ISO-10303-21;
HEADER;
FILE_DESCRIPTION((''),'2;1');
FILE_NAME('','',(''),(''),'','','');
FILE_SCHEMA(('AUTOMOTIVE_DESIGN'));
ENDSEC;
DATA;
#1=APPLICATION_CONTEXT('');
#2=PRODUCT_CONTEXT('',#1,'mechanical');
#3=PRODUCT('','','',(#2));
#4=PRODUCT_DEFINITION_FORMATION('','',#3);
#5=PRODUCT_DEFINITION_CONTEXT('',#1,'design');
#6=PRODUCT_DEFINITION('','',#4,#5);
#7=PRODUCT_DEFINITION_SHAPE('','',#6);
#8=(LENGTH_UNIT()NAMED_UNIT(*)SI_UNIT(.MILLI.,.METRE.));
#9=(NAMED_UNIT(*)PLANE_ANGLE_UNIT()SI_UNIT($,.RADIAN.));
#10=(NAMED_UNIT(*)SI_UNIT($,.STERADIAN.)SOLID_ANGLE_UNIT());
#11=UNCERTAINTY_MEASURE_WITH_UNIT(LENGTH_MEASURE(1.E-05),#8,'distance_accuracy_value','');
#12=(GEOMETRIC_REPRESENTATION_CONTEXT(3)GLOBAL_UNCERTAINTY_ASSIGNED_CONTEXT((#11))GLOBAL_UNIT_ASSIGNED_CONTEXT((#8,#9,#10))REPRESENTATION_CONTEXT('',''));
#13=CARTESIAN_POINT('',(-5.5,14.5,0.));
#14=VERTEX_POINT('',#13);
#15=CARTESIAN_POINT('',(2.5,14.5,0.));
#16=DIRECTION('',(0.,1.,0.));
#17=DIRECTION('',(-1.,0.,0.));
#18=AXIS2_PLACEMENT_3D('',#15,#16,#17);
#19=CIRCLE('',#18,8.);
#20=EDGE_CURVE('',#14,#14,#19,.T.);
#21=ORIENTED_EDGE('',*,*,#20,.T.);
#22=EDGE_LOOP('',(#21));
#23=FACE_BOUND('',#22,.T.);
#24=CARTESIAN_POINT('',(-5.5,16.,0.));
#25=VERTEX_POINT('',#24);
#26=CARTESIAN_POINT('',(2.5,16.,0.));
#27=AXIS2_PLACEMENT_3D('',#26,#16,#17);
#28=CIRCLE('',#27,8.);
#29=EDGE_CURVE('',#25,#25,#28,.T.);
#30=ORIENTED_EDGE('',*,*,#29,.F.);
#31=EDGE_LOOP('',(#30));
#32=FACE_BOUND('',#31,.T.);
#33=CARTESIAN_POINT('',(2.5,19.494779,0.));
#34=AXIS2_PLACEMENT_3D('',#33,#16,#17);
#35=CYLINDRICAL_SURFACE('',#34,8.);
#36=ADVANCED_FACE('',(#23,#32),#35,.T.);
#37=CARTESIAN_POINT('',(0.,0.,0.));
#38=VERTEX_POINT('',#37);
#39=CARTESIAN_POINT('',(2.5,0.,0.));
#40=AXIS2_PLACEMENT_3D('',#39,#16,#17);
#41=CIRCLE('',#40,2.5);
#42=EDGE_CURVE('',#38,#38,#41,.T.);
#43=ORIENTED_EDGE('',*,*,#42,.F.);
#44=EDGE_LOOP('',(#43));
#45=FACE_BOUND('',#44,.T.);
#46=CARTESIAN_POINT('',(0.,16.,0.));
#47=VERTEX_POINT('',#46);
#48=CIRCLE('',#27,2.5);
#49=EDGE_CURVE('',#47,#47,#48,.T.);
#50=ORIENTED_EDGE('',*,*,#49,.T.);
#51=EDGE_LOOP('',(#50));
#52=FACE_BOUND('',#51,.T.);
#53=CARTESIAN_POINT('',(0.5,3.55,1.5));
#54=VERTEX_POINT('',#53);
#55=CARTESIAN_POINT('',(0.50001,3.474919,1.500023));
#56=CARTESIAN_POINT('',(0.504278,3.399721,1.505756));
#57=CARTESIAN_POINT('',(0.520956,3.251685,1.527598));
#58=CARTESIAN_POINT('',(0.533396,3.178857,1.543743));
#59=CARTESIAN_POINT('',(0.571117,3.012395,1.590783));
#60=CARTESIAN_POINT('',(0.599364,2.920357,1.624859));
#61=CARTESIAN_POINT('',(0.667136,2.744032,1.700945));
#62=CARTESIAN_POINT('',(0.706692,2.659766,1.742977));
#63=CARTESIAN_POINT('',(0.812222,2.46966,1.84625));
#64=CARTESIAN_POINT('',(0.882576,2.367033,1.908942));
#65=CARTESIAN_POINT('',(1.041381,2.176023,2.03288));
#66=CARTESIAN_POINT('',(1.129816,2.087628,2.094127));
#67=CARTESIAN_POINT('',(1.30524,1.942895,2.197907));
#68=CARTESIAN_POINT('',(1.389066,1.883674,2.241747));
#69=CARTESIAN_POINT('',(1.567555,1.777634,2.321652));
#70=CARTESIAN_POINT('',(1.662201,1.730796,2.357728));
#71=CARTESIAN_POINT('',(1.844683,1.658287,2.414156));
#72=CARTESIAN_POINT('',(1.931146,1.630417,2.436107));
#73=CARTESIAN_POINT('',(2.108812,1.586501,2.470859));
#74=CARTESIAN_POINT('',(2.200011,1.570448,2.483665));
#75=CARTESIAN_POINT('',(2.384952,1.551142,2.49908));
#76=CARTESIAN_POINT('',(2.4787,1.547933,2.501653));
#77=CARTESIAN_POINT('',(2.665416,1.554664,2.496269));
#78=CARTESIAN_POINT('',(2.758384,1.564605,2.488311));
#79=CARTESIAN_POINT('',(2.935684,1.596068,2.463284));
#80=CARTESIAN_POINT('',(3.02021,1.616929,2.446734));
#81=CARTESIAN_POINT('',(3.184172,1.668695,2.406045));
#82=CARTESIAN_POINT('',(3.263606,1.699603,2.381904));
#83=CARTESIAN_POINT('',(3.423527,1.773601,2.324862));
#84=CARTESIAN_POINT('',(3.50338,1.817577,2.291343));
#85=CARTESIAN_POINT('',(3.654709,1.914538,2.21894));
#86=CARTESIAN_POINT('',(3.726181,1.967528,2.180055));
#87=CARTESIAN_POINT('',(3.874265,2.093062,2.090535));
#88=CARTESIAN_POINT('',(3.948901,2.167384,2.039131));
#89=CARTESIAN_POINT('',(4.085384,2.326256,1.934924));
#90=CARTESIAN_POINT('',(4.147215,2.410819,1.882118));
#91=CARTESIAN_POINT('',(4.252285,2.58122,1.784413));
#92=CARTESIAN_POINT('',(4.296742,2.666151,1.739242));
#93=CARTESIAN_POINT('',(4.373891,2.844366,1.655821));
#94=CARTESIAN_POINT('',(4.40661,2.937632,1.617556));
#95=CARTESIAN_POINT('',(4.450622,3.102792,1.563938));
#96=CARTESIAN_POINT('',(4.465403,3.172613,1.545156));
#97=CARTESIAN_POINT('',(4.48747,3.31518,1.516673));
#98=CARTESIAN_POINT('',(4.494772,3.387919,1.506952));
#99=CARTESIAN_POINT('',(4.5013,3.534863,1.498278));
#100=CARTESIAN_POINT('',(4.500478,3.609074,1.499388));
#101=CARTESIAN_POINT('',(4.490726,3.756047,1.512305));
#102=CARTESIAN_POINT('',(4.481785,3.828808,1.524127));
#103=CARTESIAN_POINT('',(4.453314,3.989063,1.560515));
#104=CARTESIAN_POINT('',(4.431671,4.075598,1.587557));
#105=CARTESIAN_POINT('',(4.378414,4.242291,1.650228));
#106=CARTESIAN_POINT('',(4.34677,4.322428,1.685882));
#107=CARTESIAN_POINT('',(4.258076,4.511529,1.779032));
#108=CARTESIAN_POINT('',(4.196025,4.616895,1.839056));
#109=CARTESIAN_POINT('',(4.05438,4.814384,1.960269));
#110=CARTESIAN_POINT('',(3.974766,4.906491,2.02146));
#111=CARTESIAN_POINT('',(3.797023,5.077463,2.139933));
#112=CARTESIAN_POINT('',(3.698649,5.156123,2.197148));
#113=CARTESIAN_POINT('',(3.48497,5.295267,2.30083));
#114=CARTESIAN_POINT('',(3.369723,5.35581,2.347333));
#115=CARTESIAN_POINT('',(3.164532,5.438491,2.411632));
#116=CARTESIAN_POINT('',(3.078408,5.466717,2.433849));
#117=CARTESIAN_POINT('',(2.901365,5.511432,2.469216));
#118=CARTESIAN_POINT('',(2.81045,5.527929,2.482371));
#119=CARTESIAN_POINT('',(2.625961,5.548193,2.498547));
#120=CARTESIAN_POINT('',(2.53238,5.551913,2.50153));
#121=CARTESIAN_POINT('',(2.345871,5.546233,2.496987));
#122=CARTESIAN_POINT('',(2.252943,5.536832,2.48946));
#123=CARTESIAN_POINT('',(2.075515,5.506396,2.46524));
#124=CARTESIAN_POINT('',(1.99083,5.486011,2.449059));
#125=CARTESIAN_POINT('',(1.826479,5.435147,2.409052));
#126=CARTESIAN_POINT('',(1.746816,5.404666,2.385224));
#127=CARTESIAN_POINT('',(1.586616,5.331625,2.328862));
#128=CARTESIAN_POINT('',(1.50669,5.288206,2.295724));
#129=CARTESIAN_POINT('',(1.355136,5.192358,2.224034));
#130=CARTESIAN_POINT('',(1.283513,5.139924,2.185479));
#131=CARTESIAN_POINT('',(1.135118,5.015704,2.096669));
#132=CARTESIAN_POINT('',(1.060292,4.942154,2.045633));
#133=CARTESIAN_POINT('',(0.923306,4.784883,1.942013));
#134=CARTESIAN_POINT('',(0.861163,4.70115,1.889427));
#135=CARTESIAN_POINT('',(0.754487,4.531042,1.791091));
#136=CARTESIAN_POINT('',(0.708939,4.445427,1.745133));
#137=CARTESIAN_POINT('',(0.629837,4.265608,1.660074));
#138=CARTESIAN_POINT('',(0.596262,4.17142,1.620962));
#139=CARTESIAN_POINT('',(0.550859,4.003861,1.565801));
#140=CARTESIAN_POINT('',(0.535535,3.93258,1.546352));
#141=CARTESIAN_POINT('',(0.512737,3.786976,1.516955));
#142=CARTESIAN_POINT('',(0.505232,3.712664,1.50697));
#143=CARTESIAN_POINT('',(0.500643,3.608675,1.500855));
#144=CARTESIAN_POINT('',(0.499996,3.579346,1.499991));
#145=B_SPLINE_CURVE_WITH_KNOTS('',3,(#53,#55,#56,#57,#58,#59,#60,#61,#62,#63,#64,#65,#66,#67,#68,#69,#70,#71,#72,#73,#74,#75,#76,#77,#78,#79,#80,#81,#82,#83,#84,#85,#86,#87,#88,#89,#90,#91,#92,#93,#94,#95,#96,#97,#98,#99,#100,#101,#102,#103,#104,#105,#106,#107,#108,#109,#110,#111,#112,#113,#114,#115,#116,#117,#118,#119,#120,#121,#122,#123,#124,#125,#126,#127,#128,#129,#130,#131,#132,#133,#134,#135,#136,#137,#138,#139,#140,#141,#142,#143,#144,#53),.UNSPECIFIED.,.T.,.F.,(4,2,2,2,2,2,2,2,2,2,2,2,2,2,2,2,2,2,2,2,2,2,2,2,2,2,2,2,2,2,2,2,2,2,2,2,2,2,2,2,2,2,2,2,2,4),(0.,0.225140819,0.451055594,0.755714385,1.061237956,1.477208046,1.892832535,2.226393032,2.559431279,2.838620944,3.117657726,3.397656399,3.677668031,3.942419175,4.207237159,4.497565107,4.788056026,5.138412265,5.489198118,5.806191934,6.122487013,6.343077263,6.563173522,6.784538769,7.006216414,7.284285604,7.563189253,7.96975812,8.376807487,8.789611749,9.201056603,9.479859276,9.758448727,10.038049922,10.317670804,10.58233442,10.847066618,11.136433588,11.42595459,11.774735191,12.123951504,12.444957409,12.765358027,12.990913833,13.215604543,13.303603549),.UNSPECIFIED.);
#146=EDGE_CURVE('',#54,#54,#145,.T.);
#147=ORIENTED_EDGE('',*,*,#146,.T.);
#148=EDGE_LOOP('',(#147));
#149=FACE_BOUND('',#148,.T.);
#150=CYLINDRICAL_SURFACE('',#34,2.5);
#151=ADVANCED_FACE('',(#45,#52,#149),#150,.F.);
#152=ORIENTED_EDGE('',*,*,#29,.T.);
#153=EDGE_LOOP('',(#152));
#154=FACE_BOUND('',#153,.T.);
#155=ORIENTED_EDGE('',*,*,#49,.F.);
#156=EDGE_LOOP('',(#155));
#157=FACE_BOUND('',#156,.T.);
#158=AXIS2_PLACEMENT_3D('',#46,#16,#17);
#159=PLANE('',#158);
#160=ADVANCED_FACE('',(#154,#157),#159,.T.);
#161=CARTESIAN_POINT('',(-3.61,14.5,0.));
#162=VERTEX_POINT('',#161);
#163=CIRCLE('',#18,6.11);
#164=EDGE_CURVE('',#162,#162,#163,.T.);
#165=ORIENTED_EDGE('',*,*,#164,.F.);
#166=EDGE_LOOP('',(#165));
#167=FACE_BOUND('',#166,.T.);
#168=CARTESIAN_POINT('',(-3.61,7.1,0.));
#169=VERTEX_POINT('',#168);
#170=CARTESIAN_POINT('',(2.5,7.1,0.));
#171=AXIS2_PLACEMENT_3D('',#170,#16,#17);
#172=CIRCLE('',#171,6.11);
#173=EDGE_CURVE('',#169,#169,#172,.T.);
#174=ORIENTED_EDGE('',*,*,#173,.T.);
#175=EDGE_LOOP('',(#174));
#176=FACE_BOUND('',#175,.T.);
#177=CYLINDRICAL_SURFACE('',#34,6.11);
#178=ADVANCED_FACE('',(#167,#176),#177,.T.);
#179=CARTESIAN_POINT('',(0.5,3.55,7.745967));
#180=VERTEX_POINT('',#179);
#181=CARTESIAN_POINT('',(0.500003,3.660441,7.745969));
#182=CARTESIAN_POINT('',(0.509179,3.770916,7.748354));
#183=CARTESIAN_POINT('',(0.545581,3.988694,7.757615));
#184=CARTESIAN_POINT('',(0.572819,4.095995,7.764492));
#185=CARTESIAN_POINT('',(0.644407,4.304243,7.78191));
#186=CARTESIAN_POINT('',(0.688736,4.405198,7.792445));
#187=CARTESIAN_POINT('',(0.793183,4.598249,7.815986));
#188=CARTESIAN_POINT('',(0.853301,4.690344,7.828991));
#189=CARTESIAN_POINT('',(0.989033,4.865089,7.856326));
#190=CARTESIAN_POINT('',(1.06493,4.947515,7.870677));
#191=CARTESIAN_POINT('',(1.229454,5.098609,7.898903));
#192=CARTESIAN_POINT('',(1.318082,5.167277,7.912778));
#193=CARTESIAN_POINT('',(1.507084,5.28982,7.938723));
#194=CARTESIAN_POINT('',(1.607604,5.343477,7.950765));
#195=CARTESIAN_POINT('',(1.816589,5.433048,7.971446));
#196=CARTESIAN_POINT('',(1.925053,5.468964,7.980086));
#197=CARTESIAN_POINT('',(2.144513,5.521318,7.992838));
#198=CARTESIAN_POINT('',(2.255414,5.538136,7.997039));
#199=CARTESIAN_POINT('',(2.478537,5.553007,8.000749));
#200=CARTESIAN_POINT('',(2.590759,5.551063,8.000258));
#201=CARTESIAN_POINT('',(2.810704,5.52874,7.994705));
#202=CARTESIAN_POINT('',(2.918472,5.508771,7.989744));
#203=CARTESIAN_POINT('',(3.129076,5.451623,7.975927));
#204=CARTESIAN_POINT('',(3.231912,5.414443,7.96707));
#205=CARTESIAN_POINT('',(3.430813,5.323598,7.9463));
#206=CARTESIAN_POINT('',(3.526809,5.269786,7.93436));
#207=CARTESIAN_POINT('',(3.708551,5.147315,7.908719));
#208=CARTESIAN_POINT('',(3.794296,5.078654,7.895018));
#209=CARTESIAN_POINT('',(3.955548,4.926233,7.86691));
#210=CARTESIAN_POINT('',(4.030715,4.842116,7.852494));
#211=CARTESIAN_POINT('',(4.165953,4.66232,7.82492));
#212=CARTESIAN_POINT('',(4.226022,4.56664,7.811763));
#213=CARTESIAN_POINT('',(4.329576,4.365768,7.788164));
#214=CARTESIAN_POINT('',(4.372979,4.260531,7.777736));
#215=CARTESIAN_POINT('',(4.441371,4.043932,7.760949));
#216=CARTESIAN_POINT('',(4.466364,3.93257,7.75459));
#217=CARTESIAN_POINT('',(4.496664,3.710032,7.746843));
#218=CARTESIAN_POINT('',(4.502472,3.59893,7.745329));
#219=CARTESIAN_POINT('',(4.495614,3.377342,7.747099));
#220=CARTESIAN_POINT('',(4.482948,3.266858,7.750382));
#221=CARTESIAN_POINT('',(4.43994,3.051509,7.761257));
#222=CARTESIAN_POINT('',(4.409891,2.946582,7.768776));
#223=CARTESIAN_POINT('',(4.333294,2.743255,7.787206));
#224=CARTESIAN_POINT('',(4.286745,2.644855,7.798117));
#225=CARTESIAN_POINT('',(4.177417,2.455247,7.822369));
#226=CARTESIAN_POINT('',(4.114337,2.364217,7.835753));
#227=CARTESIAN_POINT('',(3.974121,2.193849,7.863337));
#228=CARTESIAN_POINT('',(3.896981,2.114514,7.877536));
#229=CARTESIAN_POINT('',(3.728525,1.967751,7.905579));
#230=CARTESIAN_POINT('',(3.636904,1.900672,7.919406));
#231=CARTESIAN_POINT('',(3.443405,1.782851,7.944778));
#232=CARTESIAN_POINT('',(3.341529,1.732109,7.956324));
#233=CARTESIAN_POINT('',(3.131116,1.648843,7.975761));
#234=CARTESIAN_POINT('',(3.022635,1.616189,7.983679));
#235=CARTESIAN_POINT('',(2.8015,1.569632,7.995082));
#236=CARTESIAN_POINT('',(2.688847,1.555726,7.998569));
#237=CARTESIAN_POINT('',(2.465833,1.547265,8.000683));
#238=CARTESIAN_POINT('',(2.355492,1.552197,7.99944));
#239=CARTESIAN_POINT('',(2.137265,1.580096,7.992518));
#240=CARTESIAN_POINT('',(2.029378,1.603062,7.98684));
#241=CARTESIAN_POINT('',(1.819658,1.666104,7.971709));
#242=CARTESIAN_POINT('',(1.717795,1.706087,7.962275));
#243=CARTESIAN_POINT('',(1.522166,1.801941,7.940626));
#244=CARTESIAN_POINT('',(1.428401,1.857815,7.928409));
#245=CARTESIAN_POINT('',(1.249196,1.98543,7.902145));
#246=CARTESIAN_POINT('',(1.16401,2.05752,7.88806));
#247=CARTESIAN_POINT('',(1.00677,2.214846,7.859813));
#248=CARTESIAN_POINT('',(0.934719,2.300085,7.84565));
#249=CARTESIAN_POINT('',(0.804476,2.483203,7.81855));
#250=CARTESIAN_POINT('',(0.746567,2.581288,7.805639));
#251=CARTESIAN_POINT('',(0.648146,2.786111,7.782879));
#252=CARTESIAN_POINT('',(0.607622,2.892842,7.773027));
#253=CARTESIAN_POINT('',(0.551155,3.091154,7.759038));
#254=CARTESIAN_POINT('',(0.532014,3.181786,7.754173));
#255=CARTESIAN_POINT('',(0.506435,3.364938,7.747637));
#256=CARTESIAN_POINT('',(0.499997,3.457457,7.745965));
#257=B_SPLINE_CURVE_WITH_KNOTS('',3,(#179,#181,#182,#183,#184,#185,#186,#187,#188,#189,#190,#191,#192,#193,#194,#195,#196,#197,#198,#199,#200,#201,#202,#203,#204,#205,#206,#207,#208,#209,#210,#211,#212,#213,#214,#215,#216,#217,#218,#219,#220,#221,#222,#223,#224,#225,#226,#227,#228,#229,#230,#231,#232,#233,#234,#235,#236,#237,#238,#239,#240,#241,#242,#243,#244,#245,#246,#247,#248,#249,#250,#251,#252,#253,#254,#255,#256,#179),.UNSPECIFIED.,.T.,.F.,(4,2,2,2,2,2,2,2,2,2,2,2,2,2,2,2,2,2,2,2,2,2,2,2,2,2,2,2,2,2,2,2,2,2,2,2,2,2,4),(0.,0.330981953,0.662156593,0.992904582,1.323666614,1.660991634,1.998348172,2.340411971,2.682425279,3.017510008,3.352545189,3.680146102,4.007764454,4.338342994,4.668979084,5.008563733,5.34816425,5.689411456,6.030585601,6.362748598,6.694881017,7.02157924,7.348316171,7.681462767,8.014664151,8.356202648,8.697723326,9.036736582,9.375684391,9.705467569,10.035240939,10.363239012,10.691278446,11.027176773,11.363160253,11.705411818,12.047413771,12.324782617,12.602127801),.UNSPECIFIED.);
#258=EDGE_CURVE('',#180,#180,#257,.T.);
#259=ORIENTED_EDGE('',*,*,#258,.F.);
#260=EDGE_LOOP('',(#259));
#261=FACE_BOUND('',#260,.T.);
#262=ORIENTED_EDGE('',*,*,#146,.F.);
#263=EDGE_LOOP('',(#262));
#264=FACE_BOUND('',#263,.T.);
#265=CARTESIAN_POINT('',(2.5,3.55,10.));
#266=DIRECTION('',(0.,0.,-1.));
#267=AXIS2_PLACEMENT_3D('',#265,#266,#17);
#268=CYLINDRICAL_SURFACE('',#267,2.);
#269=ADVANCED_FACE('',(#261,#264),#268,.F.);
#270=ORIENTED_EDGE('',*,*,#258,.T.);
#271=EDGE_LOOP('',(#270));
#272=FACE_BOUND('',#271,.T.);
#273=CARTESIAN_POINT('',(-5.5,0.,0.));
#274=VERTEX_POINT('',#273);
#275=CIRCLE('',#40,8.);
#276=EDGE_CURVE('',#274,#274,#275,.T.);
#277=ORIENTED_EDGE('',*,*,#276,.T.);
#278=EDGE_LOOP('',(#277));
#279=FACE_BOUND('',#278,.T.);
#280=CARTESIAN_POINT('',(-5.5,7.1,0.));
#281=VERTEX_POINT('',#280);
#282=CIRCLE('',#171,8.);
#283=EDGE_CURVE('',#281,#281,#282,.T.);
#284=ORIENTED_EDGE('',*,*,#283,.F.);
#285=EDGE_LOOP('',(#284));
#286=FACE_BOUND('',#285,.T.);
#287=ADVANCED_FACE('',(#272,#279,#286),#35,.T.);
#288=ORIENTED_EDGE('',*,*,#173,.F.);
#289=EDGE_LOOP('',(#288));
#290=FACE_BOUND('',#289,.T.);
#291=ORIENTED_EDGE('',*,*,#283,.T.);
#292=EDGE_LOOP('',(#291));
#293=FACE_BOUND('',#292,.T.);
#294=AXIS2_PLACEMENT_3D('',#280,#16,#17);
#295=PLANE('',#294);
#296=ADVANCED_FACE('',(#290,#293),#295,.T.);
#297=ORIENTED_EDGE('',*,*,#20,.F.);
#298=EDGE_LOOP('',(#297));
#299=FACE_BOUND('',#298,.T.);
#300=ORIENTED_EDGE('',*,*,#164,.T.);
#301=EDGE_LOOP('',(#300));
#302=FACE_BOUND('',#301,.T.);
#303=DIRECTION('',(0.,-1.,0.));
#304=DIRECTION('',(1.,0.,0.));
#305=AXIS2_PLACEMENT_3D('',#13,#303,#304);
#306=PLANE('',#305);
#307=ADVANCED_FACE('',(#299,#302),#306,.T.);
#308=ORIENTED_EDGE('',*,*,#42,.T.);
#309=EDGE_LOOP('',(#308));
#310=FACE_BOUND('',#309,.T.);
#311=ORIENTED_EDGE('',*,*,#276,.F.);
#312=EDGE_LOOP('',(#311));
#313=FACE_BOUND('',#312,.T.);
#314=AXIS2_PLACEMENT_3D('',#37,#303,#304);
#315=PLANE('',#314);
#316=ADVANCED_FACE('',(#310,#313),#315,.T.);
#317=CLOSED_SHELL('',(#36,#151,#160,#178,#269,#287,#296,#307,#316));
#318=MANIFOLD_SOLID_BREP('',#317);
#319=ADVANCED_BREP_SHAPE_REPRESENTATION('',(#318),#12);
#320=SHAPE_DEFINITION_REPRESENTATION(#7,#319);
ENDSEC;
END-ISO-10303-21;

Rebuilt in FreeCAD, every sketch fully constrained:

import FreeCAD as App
import Part
import Sketcher
from FreeCAD import Vector

doc = App.newDocument("Part")
body = doc.addObject("PartDesign::Body", "Body")

# Sketch on XY plane
sketch1 = body.newObject("Sketcher::SketchObject", "Sketch")
sketch1.AttachmentSupport = (doc.getObject("XY_Plane"), [""])
sketch1.MapMode = "FlatFace"
sketch1.addGeometry(Part.LineSegment(Vector(0, 0, 0), Vector(0, 16, 0)), False)
sketch1.addGeometry(Part.LineSegment(Vector(0, 16, 0), Vector(-5.5, 16, 0)), False)
sketch1.addGeometry(Part.LineSegment(Vector(-5.5, 16, 0), Vector(-5.5, 14.5, 0)), False)
sketch1.addGeometry(Part.LineSegment(Vector(-5.5, 14.5, 0), Vector(-3.6, 14.5, 0)), False)
sketch1.addGeometry(Part.LineSegment(Vector(-3.6, 14.5, 0), Vector(-3.6, 7.1, 0)), False)
sketch1.addGeometry(Part.LineSegment(Vector(-3.6, 7.1, 0), Vector(-5.5, 7.1, 0)), False)
sketch1.addGeometry(Part.LineSegment(Vector(-5.5, 7.1, 0), Vector(-5.5, 0, 0)), False)
sketch1.addGeometry(Part.LineSegment(Vector(-5.5, 0, 0), Vector(0, 0, 0)), False)
sketch1.addGeometry(Part.LineSegment(Vector(2.5, 16, 0), Vector(2.5, 0, 0)), True)  # axis
sketch1.addConstraint(Sketcher.Constraint("Coincident", 0, 2, 1, 1))
sketch1.addConstraint(Sketcher.Constraint("Coincident", 1, 2, 2, 1))
sketch1.addConstraint(Sketcher.Constraint("Coincident", 2, 2, 3, 1))
sketch1.addConstraint(Sketcher.Constraint("Coincident", 3, 2, 4, 1))
sketch1.addConstraint(Sketcher.Constraint("Coincident", 4, 2, 5, 1))
sketch1.addConstraint(Sketcher.Constraint("Coincident", 5, 2, 6, 1))
sketch1.addConstraint(Sketcher.Constraint("Coincident", 6, 2, 7, 1))
sketch1.addConstraint(Sketcher.Constraint("Coincident", 7, 2, 0, 1))
sketch1.addConstraint(Sketcher.Constraint("Vertical", 0))
sketch1.addConstraint(Sketcher.Constraint("Horizontal", 1))
sketch1.addConstraint(Sketcher.Constraint("Vertical", 2))
sketch1.addConstraint(Sketcher.Constraint("Horizontal", 3))
sketch1.addConstraint(Sketcher.Constraint("Vertical", 4))
sketch1.addConstraint(Sketcher.Constraint("Horizontal", 5))
sketch1.addConstraint(Sketcher.Constraint("Vertical", 6))
sketch1.addConstraint(Sketcher.Constraint("Horizontal", 7))
sketch1.addConstraint(Sketcher.Constraint("Vertical", 8))
sketch1.addConstraint(Sketcher.Constraint("Coincident", 7, 2, -1, 1))
sketch1.addConstraint(Sketcher.Constraint("PointOnObject", 8, 2, -1))
sketch1.addConstraint(Sketcher.Constraint("Horizontal", 1, 2, 8, 1))
sketch1.addConstraint(Sketcher.Constraint("Vertical", 2, 2, 5, 2))
sketch1.addConstraint(Sketcher.Constraint("DistanceY", 0, 1, 0, 2, 16.0))
sketch1.addConstraint(Sketcher.Constraint("DistanceX", 1, 2, 1, 1, 5.5))
sketch1.addConstraint(Sketcher.Constraint("DistanceY", 2, 2, 2, 1, 1.5))
sketch1.addConstraint(Sketcher.Constraint("DistanceY", 4, 2, 4, 1, 7.4))
sketch1.addConstraint(Sketcher.Constraint("DistanceX", 1, 2, 8, 1, 8.0))
sketch1.addConstraint(Sketcher.Constraint("DistanceX", 3, 1, 3, 2, 1.89))
revolution = body.newObject("PartDesign::Revolution", "Revolution")
revolution.Profile = sketch1
revolution.ReferenceAxis = (sketch1, ["Axis0"])
revolution.Angle = 360

# Sketch on XY plane
sketch2 = body.newObject("Sketcher::SketchObject", "Sketch001")
sketch2.AttachmentSupport = (doc.getObject("XY_Plane"), [""])
sketch2.MapMode = "FlatFace"
sketch2.addGeometry(Part.Circle(Vector(2.5, 3.5, 0), Vector(0, 0, 1), 2), False)
sketch2.addConstraint(Sketcher.Constraint("Diameter", 0, 4.0))
sketch2.addConstraint(Sketcher.Constraint("DistanceX", -1, 1, 0, 3, 2.5))
sketch2.addConstraint(Sketcher.Constraint("DistanceY", -1, 1, 0, 3, 3.55))
pocket1 = body.newObject("PartDesign::Pocket", "Pocket")
pocket1.Profile = sketch2
pocket1.Length = 10
pocket1.Reversed = True

doc.recompute()
